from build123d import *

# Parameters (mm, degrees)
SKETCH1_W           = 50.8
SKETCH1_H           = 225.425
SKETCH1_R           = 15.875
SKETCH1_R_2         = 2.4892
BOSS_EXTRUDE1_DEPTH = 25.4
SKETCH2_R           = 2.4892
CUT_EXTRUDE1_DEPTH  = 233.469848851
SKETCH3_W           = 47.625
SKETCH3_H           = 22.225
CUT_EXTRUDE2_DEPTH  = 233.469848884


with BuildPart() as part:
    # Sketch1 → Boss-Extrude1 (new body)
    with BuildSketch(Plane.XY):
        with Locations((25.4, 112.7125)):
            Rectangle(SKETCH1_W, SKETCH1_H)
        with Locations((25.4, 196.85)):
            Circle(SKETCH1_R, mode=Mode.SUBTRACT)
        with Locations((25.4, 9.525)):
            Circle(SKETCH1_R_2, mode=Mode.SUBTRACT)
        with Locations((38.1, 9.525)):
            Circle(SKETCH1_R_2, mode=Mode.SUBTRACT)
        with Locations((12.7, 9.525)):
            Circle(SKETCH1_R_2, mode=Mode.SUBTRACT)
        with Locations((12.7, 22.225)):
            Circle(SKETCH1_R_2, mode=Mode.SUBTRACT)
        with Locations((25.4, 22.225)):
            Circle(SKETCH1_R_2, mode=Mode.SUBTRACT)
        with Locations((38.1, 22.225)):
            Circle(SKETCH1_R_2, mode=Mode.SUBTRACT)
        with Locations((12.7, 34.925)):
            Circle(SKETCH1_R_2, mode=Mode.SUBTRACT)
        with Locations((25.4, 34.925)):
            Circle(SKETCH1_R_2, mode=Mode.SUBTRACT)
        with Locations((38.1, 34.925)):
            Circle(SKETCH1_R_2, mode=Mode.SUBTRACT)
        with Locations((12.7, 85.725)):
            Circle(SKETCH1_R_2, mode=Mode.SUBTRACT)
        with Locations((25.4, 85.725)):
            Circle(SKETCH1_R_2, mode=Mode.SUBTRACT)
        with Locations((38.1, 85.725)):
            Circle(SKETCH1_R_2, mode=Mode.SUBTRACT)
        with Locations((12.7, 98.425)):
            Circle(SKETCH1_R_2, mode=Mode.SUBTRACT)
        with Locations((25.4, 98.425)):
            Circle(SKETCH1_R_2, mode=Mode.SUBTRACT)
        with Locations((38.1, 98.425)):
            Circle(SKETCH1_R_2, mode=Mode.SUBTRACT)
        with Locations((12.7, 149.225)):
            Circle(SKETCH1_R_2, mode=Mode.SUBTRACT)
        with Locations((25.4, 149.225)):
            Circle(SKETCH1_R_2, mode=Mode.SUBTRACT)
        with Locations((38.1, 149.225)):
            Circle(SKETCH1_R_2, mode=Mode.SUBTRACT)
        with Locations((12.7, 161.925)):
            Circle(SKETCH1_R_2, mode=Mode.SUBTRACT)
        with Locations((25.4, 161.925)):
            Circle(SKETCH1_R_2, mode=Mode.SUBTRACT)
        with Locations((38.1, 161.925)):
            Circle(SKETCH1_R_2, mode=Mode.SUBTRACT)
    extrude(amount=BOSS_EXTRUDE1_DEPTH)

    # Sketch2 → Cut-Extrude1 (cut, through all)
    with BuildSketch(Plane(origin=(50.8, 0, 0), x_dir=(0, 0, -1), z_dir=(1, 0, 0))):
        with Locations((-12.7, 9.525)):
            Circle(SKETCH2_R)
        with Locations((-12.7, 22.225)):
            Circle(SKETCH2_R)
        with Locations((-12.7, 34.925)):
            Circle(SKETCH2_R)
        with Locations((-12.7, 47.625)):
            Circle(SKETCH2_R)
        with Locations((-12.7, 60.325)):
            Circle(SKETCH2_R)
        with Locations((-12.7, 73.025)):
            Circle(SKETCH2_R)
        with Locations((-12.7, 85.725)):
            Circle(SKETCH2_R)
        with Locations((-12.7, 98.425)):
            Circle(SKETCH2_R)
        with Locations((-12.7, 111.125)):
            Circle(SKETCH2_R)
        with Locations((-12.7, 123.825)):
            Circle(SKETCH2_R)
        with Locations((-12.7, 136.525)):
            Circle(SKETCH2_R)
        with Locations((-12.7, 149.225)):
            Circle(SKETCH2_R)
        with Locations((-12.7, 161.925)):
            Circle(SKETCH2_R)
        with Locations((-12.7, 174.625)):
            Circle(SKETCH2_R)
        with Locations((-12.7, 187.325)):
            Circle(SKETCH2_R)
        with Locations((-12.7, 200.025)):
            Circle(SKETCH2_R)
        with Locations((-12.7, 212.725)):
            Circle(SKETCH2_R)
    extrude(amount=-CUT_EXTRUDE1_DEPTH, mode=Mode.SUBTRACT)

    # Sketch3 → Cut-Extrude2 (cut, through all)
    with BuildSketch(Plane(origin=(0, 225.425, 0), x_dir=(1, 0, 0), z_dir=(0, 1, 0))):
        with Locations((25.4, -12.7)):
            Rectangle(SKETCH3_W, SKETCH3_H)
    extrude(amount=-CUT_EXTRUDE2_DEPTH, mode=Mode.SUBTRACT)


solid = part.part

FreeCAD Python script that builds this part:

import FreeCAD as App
import Part
import Sketcher
from FreeCAD import Vector
Q = App.Units.Quantity

doc = App.newDocument("Part")
params = doc.addObject("Spreadsheet::Sheet", "Params")
for row, (alias, value) in enumerate([
    ("sketch1_diameter", "1.25 in"),
    ("sketch1_width", "2 in"),
    ("sketch1_diameter2", "0.196 in"),
    ("sketch1_height", "8.875 in"),
    ("pad1_length", "1 in"),
    ("sketch2_diameter", "0.196 in"),
    ("sketch3_width", "1.875 in"),
    ("sketch3_height", "0.875 in"),
], start=1):
    params.set(f"A{row}", alias)
    params.set(f"B{row}", "=" + value)
    params.setAlias(f"B{row}", alias)

body = doc.addObject("PartDesign::Body", "Body")

# Sketch on XY plane
sketch1 = body.newObject("Sketcher::SketchObject", "Sketch")
sketch1.AttachmentSupport = (doc.getObject("XY_Plane"), [""])
sketch1.MapMode = "FlatFace"
sketch1.addGeometry([
    Part.LineSegment(Vector(0, 225.4, 0), Vector(0, 0, 0)),  # 0
    Part.LineSegment(Vector(0, 0, 0), Vector(50.8, 0, 0)),  # 1
    Part.LineSegment(Vector(50.8, 0, 0), Vector(50.8, 225.4, 0)),  # 2
    Part.LineSegment(Vector(50.8, 225.4, 0), Vector(0, 225.4, 0)),  # 3
    Part.Circle(Vector(12.7, 9.5, 0), Vector(0, 0, 1), 2.5),  # 4
    Part.Circle(Vector(12.7, 22.2, 0), Vector(0, 0, 1), 2.5),  # 5
    Part.Circle(Vector(12.7, 34.9, 0), Vector(0, 0, 1), 2.5),  # 6
    Part.Circle(Vector(12.7, 85.7, 0), Vector(0, 0, 1), 2.5),  # 7
    Part.Circle(Vector(12.7, 98.4, 0), Vector(0, 0, 1), 2.5),  # 8
    Part.Circle(Vector(25.4, 9.5, 0), Vector(0, 0, 1), 2.5),  # 9
    Part.Circle(Vector(25.4, 22.2, 0), Vector(0, 0, 1), 2.5),  # 10
    Part.Circle(Vector(25.4, 34.9, 0), Vector(0, 0, 1), 2.5),  # 11
    Part.Circle(Vector(38.1, 9.5, 0), Vector(0, 0, 1), 2.5),  # 12
    Part.Circle(Vector(38.1, 22.2, 0), Vector(0, 0, 1), 2.5),  # 13
    Part.Circle(Vector(38.1, 34.9, 0), Vector(0, 0, 1), 2.5),  # 14
    Part.Circle(Vector(25.4, 85.7, 0), Vector(0, 0, 1), 2.5),  # 15
    Part.Circle(Vector(25.4, 98.4, 0), Vector(0, 0, 1), 2.5),  # 16
    Part.Circle(Vector(38.1, 85.7, 0), Vector(0, 0, 1), 2.5),  # 17
    Part.Circle(Vector(38.1, 98.4, 0), Vector(0, 0, 1), 2.5),  # 18
    Part.Circle(Vector(12.7, 149.2, 0), Vector(0, 0, 1), 2.5),  # 19
    Part.Circle(Vector(12.7, 161.9, 0), Vector(0, 0, 1), 2.5),  # 20
    Part.Circle(Vector(25.4, 149.2, 0), Vector(0, 0, 1), 2.5),  # 21
    Part.Circle(Vector(38.1, 149.2, 0), Vector(0, 0, 1), 2.5),  # 22
    Part.Circle(Vector(25.4, 161.9, 0), Vector(0, 0, 1), 2.5),  # 23
    Part.Circle(Vector(25.4, 196.8, 0), Vector(0, 0, 1), 15.9),  # 24
    Part.Circle(Vector(38.1, 161.9, 0), Vector(0, 0, 1), 2.5),  # 25
], False)
sketch1.addConstraint([
    Sketcher.Constraint("Coincident", 0, 2, 1, 1),
    Sketcher.Constraint("Coincident", 1, 2, 2, 1),
    Sketcher.Constraint("Coincident", 2, 2, 3, 1),
    Sketcher.Constraint("Coincident", 3, 2, 0, 1),
    Sketcher.Constraint("Vertical", 0),
    Sketcher.Constraint("Horizontal", 1),
    Sketcher.Constraint("Vertical", 2),
    Sketcher.Constraint("Horizontal", 3),
    Sketcher.Constraint("Coincident", 0, 2, -1, 1),
    Sketcher.Constraint("Equal", 4, 5),
    Sketcher.Constraint("Equal", 5, 6),
    Sketcher.Constraint("Equal", 6, 7),
    Sketcher.Constraint("Equal", 7, 8),
    Sketcher.Constraint("Equal", 8, 9),
    Sketcher.Constraint("Equal", 9, 10),
    Sketcher.Constraint("Equal", 10, 11),
    Sketcher.Constraint("Equal", 11, 12),
    Sketcher.Constraint("Equal", 12, 13),
    Sketcher.Constraint("Equal", 13, 14),
    Sketcher.Constraint("Equal", 14, 15),
    Sketcher.Constraint("Equal", 15, 16),
    Sketcher.Constraint("Equal", 16, 17),
    Sketcher.Constraint("Equal", 17, 18),
    Sketcher.Constraint("Equal", 18, 19),
    Sketcher.Constraint("Equal", 19, 20),
    Sketcher.Constraint("Equal", 20, 21),
    Sketcher.Constraint("Equal", 21, 22),
    Sketcher.Constraint("Equal", 22, 23),
    Sketcher.Constraint("Equal", 23, 25),
    Sketcher.Constraint("Horizontal", 4, 3, 9, 3),
    Sketcher.Constraint("Horizontal", 5, 3, 10, 3),
    Sketcher.Constraint("Horizontal", 6, 3, 11, 3),
    Sketcher.Constraint("Horizontal", 9, 3, 12, 3),
    Sketcher.Constraint("Horizontal", 10, 3, 13, 3),
    Sketcher.Constraint("Horizontal", 11, 3, 14, 3),
    Sketcher.Constraint("Horizontal", 7, 3, 15, 3),
    Sketcher.Constraint("Horizontal", 8, 3, 16, 3),
    Sketcher.Constraint("Horizontal", 15, 3, 17, 3),
    Sketcher.Constraint("Horizontal", 16, 3, 18, 3),
    Sketcher.Constraint("Horizontal", 19, 3, 21, 3),
    Sketcher.Constraint("Horizontal", 21, 3, 22, 3),
    Sketcher.Constraint("Horizontal", 20, 3, 23, 3),
    Sketcher.Constraint("Horizontal", 23, 3, 25, 3),
    Sketcher.Constraint("Vertical", 4, 3, 5, 3),
    Sketcher.Constraint("Vertical", 5, 3, 6, 3),
    Sketcher.Constraint("Vertical", 6, 3, 7, 3),
    Sketcher.Constraint("Vertical", 7, 3, 8, 3),
    Sketcher.Constraint("Vertical", 9, 3, 10, 3),
    Sketcher.Constraint("Vertical", 10, 3, 11, 3),
    Sketcher.Constraint("Vertical", 12, 3, 13, 3),
    Sketcher.Constraint("Vertical", 13, 3, 14, 3),
    Sketcher.Constraint("Vertical", 11, 3, 15, 3),
    Sketcher.Constraint("Vertical", 15, 3, 16, 3),
    Sketcher.Constraint("Vertical", 14, 3, 17, 3),
    Sketcher.Constraint("Vertical", 17, 3, 18, 3),
    Sketcher.Constraint("Vertical", 8, 3, 19, 3),
    Sketcher.Constraint("Vertical", 19, 3, 20, 3),
    Sketcher.Constraint("Vertical", 16, 3, 21, 3),
    Sketcher.Constraint("Vertical", 18, 3, 22, 3),
    Sketcher.Constraint("Vertical", 21, 3, 23, 3),
    Sketcher.Constraint("Vertical", 23, 3, 24, 3),
    Sketcher.Constraint("Vertical", 22, 3, 25, 3),
    Sketcher.Constraint("Diameter", 24, Q("1.25 in")),
    Sketcher.Constraint("DistanceX", 1, 1, 1, 2, Q("2 in")),
    Sketcher.Constraint("Diameter", 4, Q("0.196 in")),
    Sketcher.Constraint("DistanceX", -1, 1, 9, 3, Q("1 in")),
    Sketcher.Constraint("DistanceY", 4, 3, 6, 3, Q("1 in")),
    Sketcher.Constraint("DistanceY", 6, 3, 7, 3, Q("2 in")),
    Sketcher.Constraint("DistanceY", 5, 3, 8, 3, Q("3 in")),
    Sketcher.Constraint("DistanceX", 4, 3, 12, 3, Q("1 in")),
    Sketcher.Constraint("DistanceY", 8, 3, 19, 3, Q("2 in")),
    Sketcher.Constraint("DistanceY", 7, 3, 20, 3, Q("3 in")),
    Sketcher.Constraint("DistanceY", 22, 3, 2, 2, Q("3 in")),
    Sketcher.Constraint("DistanceX", -1, 1, 4, 3, Q("0.5 in")),
    Sketcher.Constraint("DistanceY", 4, 3, 5, 3, Q("0.5 in")),
    Sketcher.Constraint("DistanceY", 0, 2, 0, 1, Q("8.875 in")),
    Sketcher.Constraint("DistanceY", -1, 1, 24, 3, Q("7.75 in")),
])
sketch1.setExpression("Constraints[62]", "Params.sketch1_diameter")
sketch1.setExpression("Constraints[63]", "Params.sketch1_width")
sketch1.setExpression("Constraints[64]", "Params.sketch1_diameter2")
sketch1.setExpression("Constraints[75]", "Params.sketch1_height")
pad1 = body.newObject("PartDesign::Pad", "Pad")
pad1.Profile = sketch1
pad1.setExpression("Length", "Params.pad1_length")

# Sketch on YZ plane
sketch2 = body.newObject("Sketcher::SketchObject", "Sketch001")
sketch2.AttachmentSupport = (doc.getObject("YZ_Plane"), [""])
sketch2.MapMode = "FlatFace"
sketch2.AttachmentOffset = App.Placement(Vector(0, 0, 2 * 25.4), App.Rotation())
sketch2.addGeometry([
    Part.Circle(Vector(9.5, 12.7, 0), Vector(0, 0, 1), 2.5),  # 0
    Part.Circle(Vector(22.2, 12.7, 0), Vector(0, 0, 1), 2.5),  # 1
    Part.Circle(Vector(34.9, 12.7, 0), Vector(0, 0, 1), 2.5),  # 2
    Part.Circle(Vector(47.6, 12.7, 0), Vector(0, 0, 1), 2.5),  # 3
    Part.Circle(Vector(60.3, 12.7, 0), Vector(0, 0, 1), 2.5),  # 4
    Part.Circle(Vector(73, 12.7, 0), Vector(0, 0, 1), 2.5),  # 5
    Part.Circle(Vector(85.7, 12.7, 0), Vector(0, 0, 1), 2.5),  # 6
    Part.Circle(Vector(98.4, 12.7, 0), Vector(0, 0, 1), 2.5),  # 7
    Part.Circle(Vector(111.1, 12.7, 0), Vector(0, 0, 1), 2.5),  # 8
    Part.Circle(Vector(123.8, 12.7, 0), Vector(0, 0, 1), 2.5),  # 9
    Part.Circle(Vector(136.5, 12.7, 0), Vector(0, 0, 1), 2.5),  # 10
    Part.Circle(Vector(149.2, 12.7, 0), Vector(0, 0, 1), 2.5),  # 11
    Part.Circle(Vector(161.9, 12.7, 0), Vector(0, 0, 1), 2.5),  # 12
    Part.Circle(Vector(174.6, 12.7, 0), Vector(0, 0, 1), 2.5),  # 13
    Part.Circle(Vector(187.3, 12.7, 0), Vector(0, 0, 1), 2.5),  # 14
    Part.Circle(Vector(200, 12.7, 0), Vector(0, 0, 1), 2.5),  # 15
    Part.Circle(Vector(212.7, 12.7, 0), Vector(0, 0, 1), 2.5),  # 16
], False)
sketch2.addConstraint([
    Sketcher.Constraint("Equal", 0, 1),
    Sketcher.Constraint("Equal", 1, 2),
    Sketcher.Constraint("Equal", 2, 3),
    Sketcher.Constraint("Equal", 3, 4),
    Sketcher.Constraint("Equal", 4, 5),
    Sketcher.Constraint("Equal", 5, 6),
    Sketcher.Constraint("Equal", 6, 7),
    Sketcher.Constraint("Equal", 7, 8),
    Sketcher.Constraint("Equal", 8, 9),
    Sketcher.Constraint("Equal", 9, 10),
    Sketcher.Constraint("Equal", 10, 11),
    Sketcher.Constraint("Equal", 11, 12),
    Sketcher.Constraint("Equal", 12, 13),
    Sketcher.Constraint("Equal", 13, 14),
    Sketcher.Constraint("Equal", 14, 15),
    Sketcher.Constraint("Equal", 15, 16),
    Sketcher.Constraint("Horizontal", 0, 3, 1, 3),
    Sketcher.Constraint("Horizontal", 1, 3, 2, 3),
    Sketcher.Constraint("Horizontal", 2, 3, 3, 3),
    Sketcher.Constraint("Horizontal", 3, 3, 4, 3),
    Sketcher.Constraint("Horizontal", 4, 3, 5, 3),
    Sketcher.Constraint("Horizontal", 5, 3, 6, 3),
    Sketcher.Constraint("Horizontal", 6, 3, 7, 3),
    Sketcher.Constraint("Horizontal", 7, 3, 8, 3),
    Sketcher.Constraint("Horizontal", 8, 3, 9, 3),
    Sketcher.Constraint("Horizontal", 9, 3, 10, 3),
    Sketcher.Constraint("Horizontal", 10, 3, 11, 3),
    Sketcher.Constraint("Horizontal", 11, 3, 12, 3),
    Sketcher.Constraint("Horizontal", 12, 3, 13, 3),
    Sketcher.Constraint("Horizontal", 13, 3, 14, 3),
    Sketcher.Constraint("Horizontal", 14, 3, 15, 3),
    Sketcher.Constraint("Horizontal", 15, 3, 16, 3),
    Sketcher.Constraint("Diameter", 0, Q("0.196 in")),
    Sketcher.Constraint("DistanceX", 0, 3, 2, 3, Q("1 in")),
    Sketcher.Constraint("DistanceX", 1, 3, 3, 3, Q("1 in")),
    Sketcher.Constraint("DistanceX", 2, 3, 4, 3, Q("1 in")),
    Sketcher.Constraint("DistanceX", 3, 3, 5, 3, Q("1 in")),
    Sketcher.Constraint("DistanceX", 4, 3, 6, 3, Q("1 in")),
    Sketcher.Constraint("DistanceX", 5, 3, 7, 3, Q("1 in")),
    Sketcher.Constraint("DistanceX", 6, 3, 8, 3, Q("1 in")),
    Sketcher.Constraint("DistanceX", 7, 3, 9, 3, Q("1 in")),
    Sketcher.Constraint("DistanceX", 8, 3, 10, 3, Q("1 in")),
    Sketcher.Constraint("DistanceX", 9, 3, 11, 3, Q("1 in")),
    Sketcher.Constraint("DistanceX", 10, 3, 12, 3, Q("1 in")),
    Sketcher.Constraint("DistanceX", 11, 3, 13, 3, Q("1 in")),
    Sketcher.Constraint("DistanceX", 12, 3, 14, 3, Q("1 in")),
    Sketcher.Constraint("DistanceX", 13, 3, 15, 3, Q("1 in")),
    Sketcher.Constraint("DistanceX", 14, 3, 16, 3, Q("1 in")),
    Sketcher.Constraint("DistanceY", -1, 1, 0, 3, Q("0.5 in")),
    Sketcher.Constraint("DistanceX", 0, 3, 1, 3, Q("0.5 in")),
    Sketcher.Constraint("DistanceX", -1, 1, 0, 3, Q("0.375 in")),
])
sketch2.setExpression("Constraints[32]", "Params.sketch2_diameter")
pocket1 = body.newObject("PartDesign::Pocket", "Pocket")
pocket1.Profile = sketch2
pocket1.Type = "ThroughAll"

# Sketch on XZ plane
sketch3 = body.newObject("Sketcher::SketchObject", "Sketch002")
sketch3.AttachmentSupport = (doc.getObject("XZ_Plane"), [""])
sketch3.MapMode = "FlatFace"
sketch3.AttachmentOffset = App.Placement(Vector(0, 0, -8.875 * 25.4), App.Rotation())
sketch3.addGeometry([
    Part.LineSegment(Vector(2, 2, 0), Vector(2, 24, 0)),
    Part.LineSegment(Vector(2, 24, 0), Vector(49, 24, 0)),
    Part.LineSegment(Vector(49, 24, 0), Vector(49, 2, 0)),
    Part.LineSegment(Vector(49, 2, 0), Vector(2, 2, 0)),
], False)
sketch3.addConstraint([
    Sketcher.Constraint("Coincident", 0, 2, 1, 1),
    Sketcher.Constraint("Coincident", 1, 2, 2, 1),
    Sketcher.Constraint("Coincident", 2, 2, 3, 1),
    Sketcher.Constraint("Coincident", 3, 2, 0, 1),
    Sketcher.Constraint("Vertical", 0),
    Sketcher.Constraint("Horizontal", 1),
    Sketcher.Constraint("Vertical", 2),
    Sketcher.Constraint("Horizontal", 3),
    Sketcher.Constraint("DistanceX", 1, 1, 1, 2, Q("1.875 in")),
    Sketcher.Constraint("DistanceY", 0, 1, 0, 2, Q("0.875 in")),
    Sketcher.Constraint("DistanceX", -1, 1, 0, 2, Q("0.0625 in")),
    Sketcher.Constraint("DistanceY", -1, 1, 0, 2, Q("0.9375 in")),
])
sketch3.setExpression("Constraints[8]", "Params.sketch3_width")
sketch3.setExpression("Constraints[9]", "Params.sketch3_height")
pocket2 = body.newObject("PartDesign::Pocket", "Pocket001")
pocket2.Profile = sketch3
pocket2.Type = "ThroughAll"
pocket2.Reversed = True

doc.recompute()
